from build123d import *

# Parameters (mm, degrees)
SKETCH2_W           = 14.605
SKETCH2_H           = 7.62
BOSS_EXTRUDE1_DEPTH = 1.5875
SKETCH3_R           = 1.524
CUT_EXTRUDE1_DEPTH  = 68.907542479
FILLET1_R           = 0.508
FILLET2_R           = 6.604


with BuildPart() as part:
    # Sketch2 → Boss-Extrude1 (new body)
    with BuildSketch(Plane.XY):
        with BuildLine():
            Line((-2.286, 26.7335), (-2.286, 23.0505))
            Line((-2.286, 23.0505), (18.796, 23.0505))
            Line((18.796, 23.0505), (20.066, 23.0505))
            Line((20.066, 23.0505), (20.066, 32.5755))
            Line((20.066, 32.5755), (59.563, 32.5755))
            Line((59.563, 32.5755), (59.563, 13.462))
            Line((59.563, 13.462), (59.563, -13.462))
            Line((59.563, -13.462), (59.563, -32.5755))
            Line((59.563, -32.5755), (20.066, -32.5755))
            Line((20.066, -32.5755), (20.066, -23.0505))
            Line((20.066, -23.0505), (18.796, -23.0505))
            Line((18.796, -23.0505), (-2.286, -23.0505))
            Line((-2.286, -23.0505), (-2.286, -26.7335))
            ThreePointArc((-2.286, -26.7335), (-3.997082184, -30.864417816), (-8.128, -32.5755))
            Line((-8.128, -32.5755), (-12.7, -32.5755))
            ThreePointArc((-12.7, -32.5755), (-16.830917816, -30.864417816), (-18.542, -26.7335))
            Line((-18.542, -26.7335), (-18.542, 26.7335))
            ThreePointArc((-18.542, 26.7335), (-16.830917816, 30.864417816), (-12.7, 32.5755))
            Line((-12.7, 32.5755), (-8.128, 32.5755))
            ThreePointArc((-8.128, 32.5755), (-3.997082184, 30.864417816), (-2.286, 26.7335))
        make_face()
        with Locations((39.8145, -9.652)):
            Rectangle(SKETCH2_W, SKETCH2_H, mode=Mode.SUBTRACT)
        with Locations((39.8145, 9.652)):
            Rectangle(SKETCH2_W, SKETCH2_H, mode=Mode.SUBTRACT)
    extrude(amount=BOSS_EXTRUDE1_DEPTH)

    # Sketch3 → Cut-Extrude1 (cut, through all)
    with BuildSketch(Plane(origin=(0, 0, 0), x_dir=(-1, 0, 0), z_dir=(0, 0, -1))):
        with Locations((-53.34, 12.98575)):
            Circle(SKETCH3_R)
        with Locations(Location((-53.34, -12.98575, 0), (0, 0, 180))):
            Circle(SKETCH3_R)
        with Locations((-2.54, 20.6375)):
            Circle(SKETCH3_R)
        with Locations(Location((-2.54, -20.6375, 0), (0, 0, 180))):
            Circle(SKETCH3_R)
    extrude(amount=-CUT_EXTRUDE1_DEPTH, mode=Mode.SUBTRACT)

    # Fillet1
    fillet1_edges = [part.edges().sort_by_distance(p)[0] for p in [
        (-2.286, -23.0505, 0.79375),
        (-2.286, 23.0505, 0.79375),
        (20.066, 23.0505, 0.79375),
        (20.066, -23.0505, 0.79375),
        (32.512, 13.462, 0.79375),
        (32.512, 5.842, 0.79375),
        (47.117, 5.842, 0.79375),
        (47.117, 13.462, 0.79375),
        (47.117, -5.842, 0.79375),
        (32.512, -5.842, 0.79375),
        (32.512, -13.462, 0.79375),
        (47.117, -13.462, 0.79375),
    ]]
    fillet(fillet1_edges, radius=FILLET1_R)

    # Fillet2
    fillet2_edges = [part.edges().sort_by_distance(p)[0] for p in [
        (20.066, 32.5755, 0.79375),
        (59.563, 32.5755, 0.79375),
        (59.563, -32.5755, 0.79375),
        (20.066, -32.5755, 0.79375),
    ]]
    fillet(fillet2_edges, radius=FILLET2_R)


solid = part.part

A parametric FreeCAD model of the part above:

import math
import FreeCAD as App
import Part
import Sketcher
Q = App.Units.Quantity


def edges_at(feature, points):
    """Names of the edges that pass closest to the given points."""
    edges = feature.Shape.Edges
    near = lambda p: min(range(len(edges)), key=lambda i: edges[i].distToShape(Part.Vertex(*p))[0])
    return sorted({f"Edge{near(p) + 1}" for p in points})

doc = App.newDocument("Part")
body = doc.addObject("PartDesign::Body", "Body")

sketch1 = body.newObject("Sketcher::SketchObject", "Sketch")
sketch1.AttachmentSupport = (doc.getObject("XY_Plane"), [""])
sketch1.MapMode = "FlatFace"
sketch1.addGeometry([
    Part.LineSegment(App.Vector(-2.3, 23.1, 0), App.Vector(-2.3, 26.7, 0)),
    Part.ArcOfCircle(Part.Circle(App.Vector(-8.1, 26.7, 0), App.Vector(0, 0, 1), 5.8), math.radians(0), math.radians(90)),
    Part.LineSegment(App.Vector(-8.1, 32.6, 0), App.Vector(-12.7, 32.6, 0)),
    Part.ArcOfCircle(Part.Circle(App.Vector(-12.7, 26.7, 0), App.Vector(0, 0, 1), 5.8), math.radians(90), math.radians(180)),
    Part.LineSegment(App.Vector(-18.5, 26.7, 0), App.Vector(-18.5, -26.7, 0)),
    Part.ArcOfCircle(Part.Circle(App.Vector(-12.7, -26.7, 0), App.Vector(0, 0, 1), 5.8), math.radians(180), math.radians(270)),
    Part.LineSegment(App.Vector(-12.7, -32.6, 0), App.Vector(-8.1, -32.6, 0)),
    Part.ArcOfCircle(Part.Circle(App.Vector(-8.1, -26.7, 0), App.Vector(0, 0, 1), 5.8), math.radians(-90), math.radians(0)),
    Part.LineSegment(App.Vector(-2.3, -26.7, 0), App.Vector(-2.3, -23.1, 0)),
    Part.LineSegment(App.Vector(-2.3, -23.1, 0), App.Vector(20.1, -23.1, 0)),
    Part.LineSegment(App.Vector(20.1, -23.1, 0), App.Vector(20.1, -32.6, 0)),
    Part.LineSegment(App.Vector(20.1, -32.6, 0), App.Vector(59.6, -32.6, 0)),
    Part.LineSegment(App.Vector(59.6, -32.6, 0), App.Vector(59.6, 32.6, 0)),
    Part.LineSegment(App.Vector(59.6, 32.6, 0), App.Vector(20.1, 32.6, 0)),
    Part.LineSegment(App.Vector(20.1, 32.6, 0), App.Vector(20.1, 23.1, 0)),
    Part.LineSegment(App.Vector(20.1, 23.1, 0), App.Vector(-2.3, 23.1, 0)),
    Part.LineSegment(App.Vector(32.5, -13.5, 0), App.Vector(32.5, -5.8, 0)),
    Part.LineSegment(App.Vector(32.5, -5.8, 0), App.Vector(47.1, -5.8, 0)),
    Part.LineSegment(App.Vector(47.1, -5.8, 0), App.Vector(47.1, -13.5, 0)),
    Part.LineSegment(App.Vector(47.1, -13.5, 0), App.Vector(32.5, -13.5, 0)),
    Part.LineSegment(App.Vector(32.5, 5.8, 0), App.Vector(32.5, 13.5, 0)),
    Part.LineSegment(App.Vector(32.5, 13.5, 0), App.Vector(47.1, 13.5, 0)),
    Part.LineSegment(App.Vector(47.1, 13.5, 0), App.Vector(47.1, 5.8, 0)),
    Part.LineSegment(App.Vector(47.1, 5.8, 0), App.Vector(32.5, 5.8, 0)),
], False)
sketch1.addConstraint([
    Sketcher.Constraint("Tangent", 0, 2, 1, 1),
    Sketcher.Constraint("Tangent", 1, 2, 2, 1),
    Sketcher.Constraint("Tangent", 2, 2, 3, 1),
    Sketcher.Constraint("Tangent", 3, 2, 4, 1),
    Sketcher.Constraint("Tangent", 4, 2, 5, 1),
    Sketcher.Constraint("Tangent", 5, 2, 6, 1),
    Sketcher.Constraint("Tangent", 6, 2, 7, 1),
    Sketcher.Constraint("Tangent", 7, 2, 8, 1),
    Sketcher.Constraint("Coincident", 8, 2, 9, 1),
    Sketcher.Constraint("Coincident", 9, 2, 10, 1),
    Sketcher.Constraint("Coincident", 10, 2, 11, 1),
    Sketcher.Constraint("Coincident", 11, 2, 12, 1),
    Sketcher.Constraint("Coincident", 12, 2, 13, 1),
    Sketcher.Constraint("Coincident", 13, 2, 14, 1),
    Sketcher.Constraint("Coincident", 14, 2, 15, 1),
    Sketcher.Constraint("Coincident", 15, 2, 0, 1),
    Sketcher.Constraint("Coincident", 16, 2, 17, 1),
    Sketcher.Constraint("Coincident", 17, 2, 18, 1),
    Sketcher.Constraint("Coincident", 18, 2, 19, 1),
    Sketcher.Constraint("Coincident", 19, 2, 16, 1),
    Sketcher.Constraint("Coincident", 20, 2, 21, 1),
    Sketcher.Constraint("Coincident", 21, 2, 22, 1),
    Sketcher.Constraint("Coincident", 22, 2, 23, 1),
    Sketcher.Constraint("Coincident", 23, 2, 20, 1),
    Sketcher.Constraint("Vertical", 0),
    Sketcher.Constraint("Horizontal", 2),
    Sketcher.Constraint("Vertical", 4),
    Sketcher.Constraint("Horizontal", 6),
    Sketcher.Constraint("Vertical", 8),
    Sketcher.Constraint("Horizontal", 9),
    Sketcher.Constraint("Vertical", 10),
    Sketcher.Constraint("Horizontal", 11),
    Sketcher.Constraint("Vertical", 12),
    Sketcher.Constraint("Horizontal", 13),
    Sketcher.Constraint("Vertical", 14),
    Sketcher.Constraint("Horizontal", 15),
    Sketcher.Constraint("Vertical", 16),
    Sketcher.Constraint("Horizontal", 17),
    Sketcher.Constraint("Vertical", 18),
    Sketcher.Constraint("Horizontal", 19),
    Sketcher.Constraint("Vertical", 20),
    Sketcher.Constraint("Horizontal", 21),
    Sketcher.Constraint("Vertical", 22),
    Sketcher.Constraint("Horizontal", 23),
    Sketcher.Constraint("Equal", 1, 3),
    Sketcher.Constraint("Equal", 3, 5),
    Sketcher.Constraint("Equal", 5, 7),
    Sketcher.Constraint("Symmetric", 1, 3, 7, 3, -1),
    Sketcher.Constraint("Symmetric", 10, 2, 13, 2, -1),
    Sketcher.Constraint("Symmetric", 19, 2, 20, 2, -1),
    Sketcher.Constraint("Symmetric", 17, 2, 22, 2, -1),
    Sketcher.Constraint("Horizontal", 6, 2, 10, 2),
    Sketcher.Constraint("Equal", 0, 8),
    Sketcher.Constraint("Radius", 1, Q("0.23 in")),
    Sketcher.Constraint("DistanceY", 16, 1, 16, 2, Q("0.3 in")),
    Sketcher.Constraint("DistanceX", 2, 2, 2, 1, Q("0.18 in")),
    Sketcher.Constraint("DistanceX", 9, 1, 9, 2, Q("0.88 in")),
    Sketcher.Constraint("DistanceX", 3, 3, -1, 1, Q("0.5 in")),
    Sketcher.Constraint("DistanceX", 11, 1, 11, 2, Q("1.555 in")),
    Sketcher.Constraint("DistanceX", 17, 1, 17, 2, Q("0.575 in")),
    Sketcher.Constraint("DistanceY", 0, 1, 0, 2, Q("0.145 in")),
    Sketcher.Constraint("DistanceY", 4, 2, 4, 1, Q("2.105 in")),
    Sketcher.Constraint("DistanceX", -1, 1, 16, 2, Q("1.28 in")),
    Sketcher.Constraint("DistanceY", 16, 2, -1, 1, Q("0.23 in")),
])
pad1 = body.newObject("PartDesign::Pad", "Pad")
pad1.Profile = sketch1
pad1.Length = Q("0.0625 in")

sketch2 = body.newObject("Sketcher::SketchObject", "Sketch001")
sketch2.AttachmentSupport = (doc.getObject("XY_Plane"), [""])
sketch2.MapMode = "FlatFace"
sketch2.addGeometry([
    Part.Circle(App.Vector(53.3, 13, 0), App.Vector(0, 0, 1), 1.5),
    Part.Circle(App.Vector(53.3, -13, 0), App.Vector(0, 0, 1), 1.5),
    Part.Circle(App.Vector(2.5, 20.6, 0), App.Vector(0, 0, 1), 1.5),
    Part.Circle(App.Vector(2.5, -20.6, 0), App.Vector(0, 0, 1), 1.5),
], False)
sketch2.addConstraint([
    Sketcher.Constraint("Equal", 0, 1),
    Sketcher.Constraint("Equal", 1, 2),
    Sketcher.Constraint("Equal", 2, 3),
    Sketcher.Constraint("Symmetric", 0, 3, 1, 3, -1),
    Sketcher.Constraint("Symmetric", 2, 3, 3, 3, -1),
    Sketcher.Constraint("Diameter", 0, Q("0.12 in")),
    Sketcher.Constraint("DistanceX", 2, 3, 0, 3, Q("2 in")),
    Sketcher.Constraint("DistanceX", -1, 1, 0, 3, Q("2.1 in")),
    Sketcher.Constraint("DistanceY", -1, 1, 2, 3, Q("0.8125 in")),
    Sketcher.Constraint("DistanceY", 1, 3, 0, 3, Q("1.0225 in")),
])
pocket1 = body.newObject("PartDesign::Pocket", "Pocket")
pocket1.Profile = sketch2
pocket1.Type = "ThroughAll"
pocket1.Reversed = True
doc.recompute()

fillet = body.newObject("PartDesign::Fillet", "Fillet")
fillet.Base = (pocket1, edges_at(pocket1, [
    (-2.286, -23.05, 0.794),
    (-2.286, 23.05, 0.794),
    (20.066, 23.05, 0.794),
    (20.066, -23.05, 0.794),
    (32.512, 13.462, 0.794),
    (32.512, 5.842, 0.794),
    (47.117, 5.842, 0.794),
    (47.117, 13.462, 0.794),
    (47.117, -5.842, 0.794),
    (32.512, -5.842, 0.794),
    (32.512, -13.462, 0.794),
    (47.117, -13.462, 0.794),
]))
fillet.Radius = Q("0.02 in")
doc.recompute()

fillet2 = body.newObject("PartDesign::Fillet", "Fillet001")
fillet2.Base = (fillet, edges_at(fillet, [
    (20.066, 32.575, 0.794),
    (59.563, 32.575, 0.794),
    (59.563, -32.575, 0.794),
    (20.066, -32.575, 0.794),
]))
fillet2.Radius = Q("0.26 in")

doc.recompute()
